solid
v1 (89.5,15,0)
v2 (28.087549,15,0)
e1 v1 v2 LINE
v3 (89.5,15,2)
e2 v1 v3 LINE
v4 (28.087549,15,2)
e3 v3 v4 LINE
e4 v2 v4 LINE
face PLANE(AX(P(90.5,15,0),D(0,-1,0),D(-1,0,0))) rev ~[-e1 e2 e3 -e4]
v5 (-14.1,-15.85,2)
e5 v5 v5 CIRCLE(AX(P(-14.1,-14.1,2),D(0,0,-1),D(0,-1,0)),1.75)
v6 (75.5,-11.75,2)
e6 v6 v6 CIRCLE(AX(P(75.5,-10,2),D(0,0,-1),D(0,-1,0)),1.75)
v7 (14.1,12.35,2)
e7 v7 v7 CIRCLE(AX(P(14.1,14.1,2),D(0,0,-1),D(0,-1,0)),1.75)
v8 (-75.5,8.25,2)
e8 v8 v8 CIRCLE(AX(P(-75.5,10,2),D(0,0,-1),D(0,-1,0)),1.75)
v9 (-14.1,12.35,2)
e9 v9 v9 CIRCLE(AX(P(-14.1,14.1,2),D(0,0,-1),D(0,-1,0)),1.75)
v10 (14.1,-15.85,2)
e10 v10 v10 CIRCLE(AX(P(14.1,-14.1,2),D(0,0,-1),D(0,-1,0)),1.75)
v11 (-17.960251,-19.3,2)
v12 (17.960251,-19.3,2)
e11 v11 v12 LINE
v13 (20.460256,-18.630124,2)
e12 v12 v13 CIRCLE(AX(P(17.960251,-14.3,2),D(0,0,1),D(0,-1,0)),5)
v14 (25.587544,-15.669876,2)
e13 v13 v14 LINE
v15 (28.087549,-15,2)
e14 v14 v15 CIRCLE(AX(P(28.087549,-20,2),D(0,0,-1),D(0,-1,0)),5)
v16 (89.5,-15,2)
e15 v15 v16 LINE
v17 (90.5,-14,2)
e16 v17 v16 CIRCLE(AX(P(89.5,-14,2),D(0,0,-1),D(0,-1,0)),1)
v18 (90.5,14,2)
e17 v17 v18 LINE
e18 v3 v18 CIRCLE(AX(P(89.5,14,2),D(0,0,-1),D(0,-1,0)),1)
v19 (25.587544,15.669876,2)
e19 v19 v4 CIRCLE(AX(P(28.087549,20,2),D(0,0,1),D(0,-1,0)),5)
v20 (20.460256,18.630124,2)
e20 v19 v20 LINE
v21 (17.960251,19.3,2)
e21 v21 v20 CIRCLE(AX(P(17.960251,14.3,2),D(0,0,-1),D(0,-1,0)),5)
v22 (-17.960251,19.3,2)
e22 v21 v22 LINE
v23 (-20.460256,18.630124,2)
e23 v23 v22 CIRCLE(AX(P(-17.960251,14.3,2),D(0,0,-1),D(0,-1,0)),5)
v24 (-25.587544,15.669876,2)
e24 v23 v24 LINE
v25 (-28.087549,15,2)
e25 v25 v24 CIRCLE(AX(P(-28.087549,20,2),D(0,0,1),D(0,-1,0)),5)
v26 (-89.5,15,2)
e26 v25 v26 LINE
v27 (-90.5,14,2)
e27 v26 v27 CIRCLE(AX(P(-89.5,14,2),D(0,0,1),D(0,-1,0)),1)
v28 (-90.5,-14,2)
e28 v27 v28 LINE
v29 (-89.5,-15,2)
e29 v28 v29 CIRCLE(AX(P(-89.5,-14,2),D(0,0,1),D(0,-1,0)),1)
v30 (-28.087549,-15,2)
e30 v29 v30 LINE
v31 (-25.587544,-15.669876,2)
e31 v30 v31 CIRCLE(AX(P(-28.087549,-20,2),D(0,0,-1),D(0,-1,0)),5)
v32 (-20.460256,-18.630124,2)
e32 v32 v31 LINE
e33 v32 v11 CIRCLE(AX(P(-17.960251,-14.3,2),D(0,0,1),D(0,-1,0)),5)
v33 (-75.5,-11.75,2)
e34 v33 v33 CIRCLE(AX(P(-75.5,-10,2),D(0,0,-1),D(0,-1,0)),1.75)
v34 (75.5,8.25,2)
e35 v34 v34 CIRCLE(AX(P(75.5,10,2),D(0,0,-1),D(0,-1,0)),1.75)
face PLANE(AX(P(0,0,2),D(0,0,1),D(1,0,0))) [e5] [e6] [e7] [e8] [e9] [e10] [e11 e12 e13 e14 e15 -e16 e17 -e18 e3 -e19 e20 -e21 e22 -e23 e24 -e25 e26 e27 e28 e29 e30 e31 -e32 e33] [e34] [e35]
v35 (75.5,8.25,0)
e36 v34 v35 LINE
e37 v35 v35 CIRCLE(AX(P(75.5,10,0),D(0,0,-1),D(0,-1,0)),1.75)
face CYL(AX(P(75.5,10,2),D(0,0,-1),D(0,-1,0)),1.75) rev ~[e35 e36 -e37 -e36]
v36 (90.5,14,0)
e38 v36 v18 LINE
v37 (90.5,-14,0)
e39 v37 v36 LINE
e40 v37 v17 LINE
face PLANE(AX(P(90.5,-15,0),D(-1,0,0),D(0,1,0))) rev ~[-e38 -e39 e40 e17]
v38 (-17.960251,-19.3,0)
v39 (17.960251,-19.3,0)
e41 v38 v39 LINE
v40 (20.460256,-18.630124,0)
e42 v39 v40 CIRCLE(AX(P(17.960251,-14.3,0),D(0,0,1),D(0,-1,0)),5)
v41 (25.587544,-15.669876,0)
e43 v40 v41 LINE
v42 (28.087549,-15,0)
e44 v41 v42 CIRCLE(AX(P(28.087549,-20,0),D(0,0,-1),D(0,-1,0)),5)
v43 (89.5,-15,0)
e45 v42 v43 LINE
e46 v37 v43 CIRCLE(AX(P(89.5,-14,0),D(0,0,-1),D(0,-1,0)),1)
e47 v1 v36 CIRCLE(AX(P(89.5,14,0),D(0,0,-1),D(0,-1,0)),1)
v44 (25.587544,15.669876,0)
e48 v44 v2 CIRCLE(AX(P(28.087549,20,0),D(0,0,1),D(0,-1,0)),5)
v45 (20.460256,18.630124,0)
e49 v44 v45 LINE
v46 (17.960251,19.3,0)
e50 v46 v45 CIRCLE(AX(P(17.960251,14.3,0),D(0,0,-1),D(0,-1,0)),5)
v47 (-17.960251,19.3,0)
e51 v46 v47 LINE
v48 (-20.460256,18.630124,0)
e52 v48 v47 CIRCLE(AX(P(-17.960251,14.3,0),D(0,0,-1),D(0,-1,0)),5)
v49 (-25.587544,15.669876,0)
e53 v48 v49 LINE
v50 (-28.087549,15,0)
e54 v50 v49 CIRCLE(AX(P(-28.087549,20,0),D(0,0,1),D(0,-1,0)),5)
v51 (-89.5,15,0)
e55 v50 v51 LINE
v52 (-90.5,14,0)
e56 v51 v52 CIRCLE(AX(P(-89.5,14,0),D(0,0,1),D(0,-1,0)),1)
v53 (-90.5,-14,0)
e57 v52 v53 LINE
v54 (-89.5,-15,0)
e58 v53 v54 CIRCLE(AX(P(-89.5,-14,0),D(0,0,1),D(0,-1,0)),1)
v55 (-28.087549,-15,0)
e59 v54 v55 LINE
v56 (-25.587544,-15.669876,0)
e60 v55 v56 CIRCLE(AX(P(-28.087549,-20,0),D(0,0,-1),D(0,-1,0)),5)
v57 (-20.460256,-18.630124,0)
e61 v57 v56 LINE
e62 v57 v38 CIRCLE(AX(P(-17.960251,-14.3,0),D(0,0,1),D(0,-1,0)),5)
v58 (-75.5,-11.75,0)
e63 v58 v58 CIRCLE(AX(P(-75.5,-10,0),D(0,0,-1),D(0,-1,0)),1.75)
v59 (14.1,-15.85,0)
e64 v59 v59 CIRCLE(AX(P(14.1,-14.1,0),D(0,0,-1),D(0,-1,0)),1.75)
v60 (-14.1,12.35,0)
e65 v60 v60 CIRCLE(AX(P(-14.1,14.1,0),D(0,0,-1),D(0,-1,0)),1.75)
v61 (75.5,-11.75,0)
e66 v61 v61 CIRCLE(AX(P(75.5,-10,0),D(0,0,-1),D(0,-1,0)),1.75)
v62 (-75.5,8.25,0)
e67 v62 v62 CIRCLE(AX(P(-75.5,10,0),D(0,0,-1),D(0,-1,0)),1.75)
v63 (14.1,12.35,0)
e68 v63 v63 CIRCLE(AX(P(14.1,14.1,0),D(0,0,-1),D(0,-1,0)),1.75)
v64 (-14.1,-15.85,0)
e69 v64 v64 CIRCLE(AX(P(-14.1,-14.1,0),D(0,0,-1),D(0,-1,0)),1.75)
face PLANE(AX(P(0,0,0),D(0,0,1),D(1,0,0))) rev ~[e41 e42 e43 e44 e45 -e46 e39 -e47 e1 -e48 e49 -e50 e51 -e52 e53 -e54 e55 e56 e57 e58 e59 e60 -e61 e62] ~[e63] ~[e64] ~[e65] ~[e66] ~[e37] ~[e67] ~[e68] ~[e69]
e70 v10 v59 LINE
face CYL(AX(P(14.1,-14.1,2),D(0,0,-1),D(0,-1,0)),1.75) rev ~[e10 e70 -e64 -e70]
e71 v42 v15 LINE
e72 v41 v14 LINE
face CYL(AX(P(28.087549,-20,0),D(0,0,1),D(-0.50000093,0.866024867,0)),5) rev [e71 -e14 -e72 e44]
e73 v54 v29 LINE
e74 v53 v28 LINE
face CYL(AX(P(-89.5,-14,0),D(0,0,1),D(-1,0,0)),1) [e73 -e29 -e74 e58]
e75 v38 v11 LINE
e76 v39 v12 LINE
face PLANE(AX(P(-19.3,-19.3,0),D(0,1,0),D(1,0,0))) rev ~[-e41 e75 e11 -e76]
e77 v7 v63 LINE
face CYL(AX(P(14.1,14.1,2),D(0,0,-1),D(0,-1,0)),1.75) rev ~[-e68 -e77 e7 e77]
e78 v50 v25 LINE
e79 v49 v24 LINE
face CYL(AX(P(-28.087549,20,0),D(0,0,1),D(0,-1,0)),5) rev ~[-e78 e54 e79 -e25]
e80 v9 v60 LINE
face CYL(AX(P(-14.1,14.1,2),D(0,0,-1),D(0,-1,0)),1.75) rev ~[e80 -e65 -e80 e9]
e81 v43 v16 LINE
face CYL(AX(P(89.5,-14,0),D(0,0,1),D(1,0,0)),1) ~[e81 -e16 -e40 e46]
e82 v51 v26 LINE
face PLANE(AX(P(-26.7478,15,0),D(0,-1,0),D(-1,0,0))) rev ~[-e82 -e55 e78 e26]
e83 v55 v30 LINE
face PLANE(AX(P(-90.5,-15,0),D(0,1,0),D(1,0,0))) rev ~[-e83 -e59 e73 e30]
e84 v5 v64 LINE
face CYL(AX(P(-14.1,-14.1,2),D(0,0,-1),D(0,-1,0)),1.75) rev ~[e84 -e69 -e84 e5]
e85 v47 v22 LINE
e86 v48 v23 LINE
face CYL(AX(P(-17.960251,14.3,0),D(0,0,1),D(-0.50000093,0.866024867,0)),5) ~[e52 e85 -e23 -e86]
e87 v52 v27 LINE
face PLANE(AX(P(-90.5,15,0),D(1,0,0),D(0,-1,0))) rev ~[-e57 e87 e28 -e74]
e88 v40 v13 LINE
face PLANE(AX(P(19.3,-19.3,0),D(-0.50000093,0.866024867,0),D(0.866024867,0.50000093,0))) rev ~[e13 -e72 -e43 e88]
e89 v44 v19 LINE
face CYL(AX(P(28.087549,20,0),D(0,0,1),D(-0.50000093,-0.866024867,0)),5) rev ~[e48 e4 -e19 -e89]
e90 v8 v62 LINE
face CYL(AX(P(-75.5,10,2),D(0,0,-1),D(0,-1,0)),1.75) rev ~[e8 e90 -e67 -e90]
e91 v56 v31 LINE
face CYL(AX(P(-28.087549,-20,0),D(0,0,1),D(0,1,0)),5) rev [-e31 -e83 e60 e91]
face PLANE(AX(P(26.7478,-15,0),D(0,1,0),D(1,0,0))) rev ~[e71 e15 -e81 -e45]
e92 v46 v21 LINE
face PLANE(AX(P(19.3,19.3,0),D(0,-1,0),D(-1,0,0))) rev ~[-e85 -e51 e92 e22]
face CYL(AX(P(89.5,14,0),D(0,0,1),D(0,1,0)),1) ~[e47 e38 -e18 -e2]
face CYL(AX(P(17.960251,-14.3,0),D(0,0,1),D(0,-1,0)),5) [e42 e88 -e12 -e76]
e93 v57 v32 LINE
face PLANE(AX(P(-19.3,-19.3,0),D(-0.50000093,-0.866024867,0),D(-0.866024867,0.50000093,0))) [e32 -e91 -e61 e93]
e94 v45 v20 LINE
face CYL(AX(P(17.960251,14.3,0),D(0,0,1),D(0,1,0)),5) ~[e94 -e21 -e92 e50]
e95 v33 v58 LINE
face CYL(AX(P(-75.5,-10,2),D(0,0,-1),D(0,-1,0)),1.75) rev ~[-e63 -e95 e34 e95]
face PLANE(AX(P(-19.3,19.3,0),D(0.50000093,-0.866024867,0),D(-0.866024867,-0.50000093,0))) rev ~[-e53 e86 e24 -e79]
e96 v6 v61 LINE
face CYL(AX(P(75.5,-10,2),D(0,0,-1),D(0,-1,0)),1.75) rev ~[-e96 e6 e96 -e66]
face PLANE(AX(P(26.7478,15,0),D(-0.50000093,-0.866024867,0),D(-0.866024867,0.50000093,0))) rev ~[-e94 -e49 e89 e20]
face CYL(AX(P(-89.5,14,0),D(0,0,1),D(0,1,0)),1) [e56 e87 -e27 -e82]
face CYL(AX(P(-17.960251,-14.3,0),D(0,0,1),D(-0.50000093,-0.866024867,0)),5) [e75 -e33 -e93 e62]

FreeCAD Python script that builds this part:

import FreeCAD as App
import Part
import Sketcher
Q = App.Units.Quantity


def edges_at(feature, points):
    """Names of the edges that pass closest to the given points."""
    edges = feature.Shape.Edges
    near = lambda p: min(range(len(edges)), key=lambda i: edges[i].distToShape(Part.Vertex(*p))[0])
    return sorted({f"Edge{near(p) + 1}" for p in points})


def add_polygon(sketch, points):
    """Adds a closed chain of lines whose ends are joined by coincident constraints."""
    first, n = sketch.GeometryCount, len(points)
    for a, b in zip(points, points[1:] + points[:1]):
        sketch.addGeometry(Part.LineSegment(App.Vector(*a, 0), App.Vector(*b, 0)), False)
    for i in range(n):
        sketch.addConstraint(Sketcher.Constraint("Coincident", first + i, 2, first + (i + 1) % n, 1))

doc = App.newDocument("Part")
params = doc.addObject("Spreadsheet::Sheet", "Params")
for row, (alias, value) in enumerate([
    ("sketch1_height", "30 mm"),
    ("sketch1_width", "38.6 mm"),
    ("pad1_length", "2 mm"),
    ("sketch2_diameter", "3.5 mm"),
    ("hole_diameter", "3.5 mm"),
    ("hole_depth", "2 mm"),
    ("sketch3_diameter", "3.5 mm"),
    ("hole2_diameter", "3.5 mm"),
    ("hole2_depth", "2 mm"),
    ("fillet_radius", "5 mm"),
    ("fillet2_radius", "1 mm"),
], start=1):
    params.set(f"A{row}", alias)
    params.set(f"B{row}", "=" + value)
    params.setAlias(f"B{row}", alias)

body = doc.addObject("PartDesign::Body", "Body")

# Sketch on XY plane
sketch1 = body.newObject("Sketcher::SketchObject", "Sketch")
sketch1.AttachmentSupport = (doc.getObject("XY_Plane"), [""])
sketch1.MapMode = "FlatFace"
add_polygon(sketch1, [(-90.5, 15), (-90.5, -15), (-26.7478, -15), (-19.3, -19.3), (19.3, -19.3), (26.7478, -15), (90.5, -15), (90.5, 15), (26.7478, 15), (19.3, 19.3), (-19.3, 19.3), (-26.7478, 15)])  # lines 0-11
sketch1.addConstraint(Sketcher.Constraint("Vertical", 0))
sketch1.addConstraint(Sketcher.Constraint("Horizontal", 1))
sketch1.addConstraint(Sketcher.Constraint("Horizontal", 3))
sketch1.addConstraint(Sketcher.Constraint("Horizontal", 5))
sketch1.addConstraint(Sketcher.Constraint("Vertical", 6))
sketch1.addConstraint(Sketcher.Constraint("Horizontal", 7))
sketch1.addConstraint(Sketcher.Constraint("Horizontal", 9))
sketch1.addConstraint(Sketcher.Constraint("Horizontal", 11))
sketch1.addConstraint(Sketcher.Constraint("Symmetric", 0, 2, 6, 2, -1, 1))
sketch1.addConstraint(Sketcher.Constraint("Symmetric", 2, 2, 8, 2, -1, 1))
sketch1.addConstraint(Sketcher.Constraint("Symmetric", 4, 2, 10, 2, -1, 1))
sketch1.addConstraint(Sketcher.Constraint("Symmetric", 1, 2, 4, 2, -2))
sketch1.addConstraint(Sketcher.Constraint("Parallel", 2, 8))
sketch1.addConstraint(Sketcher.Constraint("Parallel", 4, 10))
sketch1.addConstraint(Sketcher.Constraint("Vertical", 3, 2, 8, 2))
sketch1.addConstraint(Sketcher.Constraint("DistanceY", 0, 2, 0, 1, 30.0))
sketch1.addConstraint(Sketcher.Constraint("Angle", 2, Q("-30 deg")))
sketch1.addConstraint(Sketcher.Constraint("DistanceX", 3, 1, 3, 2, 38.6))
sketch1.addConstraint(Sketcher.Constraint("DistanceX", 0, 2, 5, 2, 181.0))
sketch1.addConstraint(Sketcher.Constraint("DistanceY", 3, 2, 8, 2, 38.6))
sketch1.setExpression("Constraints[27]", "Params.sketch1_height")
sketch1.setExpression("Constraints[29]", "Params.sketch1_width")
pad1 = body.newObject("PartDesign::Pad", "Pad")
pad1.Profile = sketch1
pad1.setExpression("Length", "Params.pad1_length")

# Sketch on XY plane
sketch2 = body.newObject("Sketcher::SketchObject", "Sketch001")
sketch2.AttachmentSupport = (doc.getObject("XY_Plane"), [""])
sketch2.MapMode = "FlatFace"
sketch2.AttachmentOffset = App.Placement(App.Vector(0, 0, 2), App.Rotation())
sketch2.addGeometry(Part.Circle(App.Vector(-75.5, 10, 0), App.Vector(0, 0, 1), 1.75), False)
sketch2.addGeometry(Part.Circle(App.Vector(-75.5, -10, 0), App.Vector(0, 0, 1), 1.75), False)
sketch2.addGeometry(Part.Circle(App.Vector(75.5, -10, 0), App.Vector(0, 0, 1), 1.75), False)
sketch2.addGeometry(Part.Circle(App.Vector(75.5, 10, 0), App.Vector(0, 0, 1), 1.75), False)
sketch2.addConstraint(Sketcher.Constraint("Equal", 0, 1))
sketch2.addConstraint(Sketcher.Constraint("Equal", 1, 2))
sketch2.addConstraint(Sketcher.Constraint("Equal", 2, 3))
sketch2.addConstraint(Sketcher.Constraint("Symmetric", 0, 3, 2, 3, -1, 1))
sketch2.addConstraint(Sketcher.Constraint("Symmetric", 1, 3, 3, 3, -1, 1))
sketch2.addConstraint(Sketcher.Constraint("Symmetric", 1, 3, 2, 3, -2))
sketch2.addConstraint(Sketcher.Constraint("Diameter", 0, 3.5))
sketch2.addConstraint(Sketcher.Constraint("DistanceY", -1, 1, 0, 3, 10.0))
sketch2.addConstraint(Sketcher.Constraint("DistanceX", 1, 3, 2, 3, 151.0))
sketch2.setExpression("Constraints[6]", "Params.sketch2_diameter")
doc.recompute()
hole = body.newObject("PartDesign::Hole", "Hole")
hole.Profile = sketch2
hole.ThreadType = "None"
hole.setExpression("Diameter", "Params.hole_diameter")
hole.DepthType = "Dimension"
hole.setExpression("Depth", "Params.hole_depth")
hole.DrillPoint = "Angled"
hole.DrillPointAngle = 118

# Sketch on XY plane
sketch3 = body.newObject("Sketcher::SketchObject", "Sketch002")
sketch3.AttachmentSupport = (doc.getObject("XY_Plane"), [""])
sketch3.MapMode = "FlatFace"
sketch3.AttachmentOffset = App.Placement(App.Vector(0, 0, 2), App.Rotation())
sketch3.addGeometry(Part.Circle(App.Vector(14.1, 14.1, 0), App.Vector(0, 0, 1), 1.75), False)
sketch3.addGeometry(Part.Circle(App.Vector(14.1, -14.1, 0), App.Vector(0, 0, 1), 1.75), False)
sketch3.addGeometry(Part.Circle(App.Vector(-14.1, -14.1, 0), App.Vector(0, 0, 1), 1.75), False)
sketch3.addGeometry(Part.Circle(App.Vector(-14.1, 14.1, 0), App.Vector(0, 0, 1), 1.75), False)
sketch3.addConstraint(Sketcher.Constraint("Equal", 0, 1))
sketch3.addConstraint(Sketcher.Constraint("Equal", 1, 2))
sketch3.addConstraint(Sketcher.Constraint("Equal", 2, 3))
sketch3.addConstraint(Sketcher.Constraint("Symmetric", 0, 3, 2, 3, -1, 1))
sketch3.addConstraint(Sketcher.Constraint("Symmetric", 1, 3, 3, 3, -1, 1))
sketch3.addConstraint(Sketcher.Constraint("Symmetric", 1, 3, 2, 3, -2))
sketch3.addConstraint(Sketcher.Constraint("Diameter", 0, 3.5))
sketch3.addConstraint(Sketcher.Constraint("DistanceX", -1, 1, 0, 3, 14.1))
sketch3.addConstraint(Sketcher.Constraint("DistanceY", -1, 1, 0, 3, 14.1))
sketch3.setExpression("Constraints[6]", "Params.sketch3_diameter")
doc.recompute()
hole2 = body.newObject("PartDesign::Hole", "Hole001")
hole2.Profile = sketch3
hole2.ThreadType = "None"
hole2.setExpression("Diameter", "Params.hole2_diameter")
hole2.DepthType = "Dimension"
hole2.setExpression("Depth", "Params.hole2_depth")
hole2.DrillPoint = "Angled"
hole2.DrillPointAngle = 118
doc.recompute()

fillet = body.newObject("PartDesign::Fillet", "Fillet")
fillet.Base = (hole2, edges_at(hole2, [
    (26.748, 15, 1),
    (19.3, 19.3, 1),
    (26.748, -15, 1),
    (19.3, -19.3, 1),
    (-19.3, -19.3, 1),
    (-26.748, -15, 1),
    (-26.748, 15, 1),
    (-19.3, 19.3, 1),
]))
fillet.setExpression("Radius", "Params.fillet_radius")
doc.recompute()

fillet2 = body.newObject("PartDesign::Fillet", "Fillet001")
fillet2.Base = (fillet, edges_at(fillet, [
    (-90.5, 15, 1),
    (-90.5, -15, 1),
    (90.5, -15, 1),
    (90.5, 15, 1),
]))
fillet2.setExpression("Radius", "Params.fillet2_radius")

doc.recompute()
